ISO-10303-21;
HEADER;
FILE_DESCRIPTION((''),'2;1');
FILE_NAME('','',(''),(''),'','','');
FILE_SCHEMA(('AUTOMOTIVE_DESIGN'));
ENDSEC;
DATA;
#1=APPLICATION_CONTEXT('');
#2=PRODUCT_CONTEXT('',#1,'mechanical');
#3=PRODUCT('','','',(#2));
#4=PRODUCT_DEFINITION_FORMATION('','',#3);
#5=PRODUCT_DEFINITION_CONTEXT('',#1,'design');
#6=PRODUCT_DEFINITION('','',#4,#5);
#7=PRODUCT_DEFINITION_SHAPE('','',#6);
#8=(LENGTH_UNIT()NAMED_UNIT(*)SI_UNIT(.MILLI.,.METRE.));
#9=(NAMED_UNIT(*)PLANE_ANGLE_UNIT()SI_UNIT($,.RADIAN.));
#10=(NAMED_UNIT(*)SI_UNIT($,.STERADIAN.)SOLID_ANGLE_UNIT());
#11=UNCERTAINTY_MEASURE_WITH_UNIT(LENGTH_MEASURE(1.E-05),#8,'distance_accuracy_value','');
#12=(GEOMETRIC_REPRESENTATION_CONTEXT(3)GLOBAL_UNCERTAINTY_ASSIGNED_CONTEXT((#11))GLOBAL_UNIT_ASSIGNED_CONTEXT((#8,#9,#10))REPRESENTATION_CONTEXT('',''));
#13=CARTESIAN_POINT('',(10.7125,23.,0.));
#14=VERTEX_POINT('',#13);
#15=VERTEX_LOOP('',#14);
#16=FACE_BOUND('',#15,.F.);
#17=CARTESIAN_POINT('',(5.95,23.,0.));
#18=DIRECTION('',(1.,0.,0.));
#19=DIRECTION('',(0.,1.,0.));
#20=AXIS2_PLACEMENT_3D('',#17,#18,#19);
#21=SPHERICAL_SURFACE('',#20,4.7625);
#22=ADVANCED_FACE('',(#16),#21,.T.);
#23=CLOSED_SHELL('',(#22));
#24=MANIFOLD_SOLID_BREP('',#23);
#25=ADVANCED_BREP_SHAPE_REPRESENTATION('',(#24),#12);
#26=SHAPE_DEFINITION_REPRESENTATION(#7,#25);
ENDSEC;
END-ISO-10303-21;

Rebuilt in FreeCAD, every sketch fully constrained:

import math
import FreeCAD as App
import Part
import Sketcher
Q = App.Units.Quantity

doc = App.newDocument("Part")
params = doc.addObject("Spreadsheet::Sheet", "Params")
for row, (alias, value) in enumerate([
    ("sketch1_radius", "0.1875 in"),
    ("revolution_angle", "360 deg"),
], start=1):
    params.set(f"A{row}", alias)
    params.set(f"B{row}", "=" + value)
    params.setAlias(f"B{row}", alias)

body = doc.addObject("PartDesign::Body", "Body")

sketch1 = body.newObject("Sketcher::SketchObject", "Sketch")
sketch1.AttachmentSupport = (doc.getObject("XY_Plane"), [""])
sketch1.MapMode = "FlatFace"
sketch1.addGeometry(Part.ArcOfCircle(Part.Circle(App.Vector(6, 23, 0), App.Vector(0, 0, 1), 4.8), math.radians(0), math.radians(180)), False)
sketch1.addGeometry(Part.LineSegment(App.Vector(1.2, 23, 0), App.Vector(10.7, 23, 0)), False)
sketch1.addGeometry(Part.LineSegment(App.Vector(10.7, 23, 0), App.Vector(1.2, 23, 0)), True)
sketch1.addConstraint(Sketcher.Constraint("Coincident", 0, 1, 1, 2))
sketch1.addConstraint(Sketcher.Constraint("Coincident", 1, 1, 0, 2))
sketch1.addConstraint(Sketcher.Constraint("Horizontal", 1))
sketch1.addConstraint(Sketcher.Constraint("Horizontal", 2))
sketch1.addConstraint(Sketcher.Constraint("Coincident", 2, 1, 0, 1))
sketch1.addConstraint(Sketcher.Constraint("Equal", 1, 2))
sketch1.addConstraint(Sketcher.Constraint("Radius", 0, Q("0.1875 in")))
sketch1.addConstraint(Sketcher.Constraint("DistanceY", -1, 1, 0, 3, Q("0.9055 in")))
sketch1.addConstraint(Sketcher.Constraint("DistanceY", -1, 1, 0, 1, Q("0.9055 in")))
sketch1.addConstraint(Sketcher.Constraint("DistanceX", -1, 1, 0, 3, Q("5.95 mm")))
sketch1.setExpression("Constraints[6]", "Params.sketch1_radius")
revolution = body.newObject("PartDesign::Revolution", "Revolution")
revolution.Profile = sketch1
revolution.ReferenceAxis = (sketch1, ["Axis0"])
revolution.setExpression("Angle", "Params.revolution_angle")

doc.recompute()
